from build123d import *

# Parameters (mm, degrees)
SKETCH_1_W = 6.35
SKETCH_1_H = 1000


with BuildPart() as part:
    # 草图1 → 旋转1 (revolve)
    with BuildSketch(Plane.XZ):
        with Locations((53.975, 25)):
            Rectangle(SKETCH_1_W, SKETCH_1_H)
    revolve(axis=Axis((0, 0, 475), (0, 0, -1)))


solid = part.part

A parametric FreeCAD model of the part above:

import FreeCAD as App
import Part
import Sketcher
Q = App.Units.Quantity


def add_polygon(sketch, points):
    """Adds a closed chain of lines whose ends are joined by coincident constraints."""
    first, n = sketch.GeometryCount, len(points)
    for a, b in zip(points, points[1:] + points[:1]):
        sketch.addGeometry(Part.LineSegment(App.Vector(*a, 0), App.Vector(*b, 0)), False)
    for i in range(n):
        sketch.addConstraint(Sketcher.Constraint("Coincident", first + i, 2, first + (i + 1) % n, 1))

doc = App.newDocument("Part")
body = doc.addObject("PartDesign::Body", "Body")

# Sketch on XZ plane
sketch1 = doc.addObject("Sketcher::SketchObject", "Sketch")
body.addObject(sketch1)
sketch1.AttachmentSupport = (doc.XZ_Plane, [""])
sketch1.MapMode = "FlatFace"
add_polygon(sketch1, [(51, 525), (51, -475), (57, -475), (57, 525)])  # lines 0-3
sketch1.addConstraint(Sketcher.Constraint("Vertical", 0))
sketch1.addConstraint(Sketcher.Constraint("Horizontal", 1))
sketch1.addConstraint(Sketcher.Constraint("Vertical", 2))
sketch1.addConstraint(Sketcher.Constraint("Horizontal", 3))
sketch1.addConstraint(Sketcher.Constraint("DistanceY", 0, 2, 0, 1, Q("1000 mm")))
sketch1.addConstraint(Sketcher.Constraint("DistanceY", 0, 2, -1, 1, Q("475 mm")))
sketch1.addConstraint(Sketcher.Constraint("DistanceX", 1, 1, 1, 2, Q("6.35 mm")))
sketch1.addConstraint(Sketcher.Constraint("DistanceX", -1, 1, 0, 2, Q("50.8 mm")))
revolution = doc.addObject("PartDesign::Revolution", "Revolution")
body.addObject(revolution)
revolution.Profile = sketch1
revolution.ReferenceAxis = (sketch1, ["V_Axis"])
revolution.Angle = 360

doc.recompute()
